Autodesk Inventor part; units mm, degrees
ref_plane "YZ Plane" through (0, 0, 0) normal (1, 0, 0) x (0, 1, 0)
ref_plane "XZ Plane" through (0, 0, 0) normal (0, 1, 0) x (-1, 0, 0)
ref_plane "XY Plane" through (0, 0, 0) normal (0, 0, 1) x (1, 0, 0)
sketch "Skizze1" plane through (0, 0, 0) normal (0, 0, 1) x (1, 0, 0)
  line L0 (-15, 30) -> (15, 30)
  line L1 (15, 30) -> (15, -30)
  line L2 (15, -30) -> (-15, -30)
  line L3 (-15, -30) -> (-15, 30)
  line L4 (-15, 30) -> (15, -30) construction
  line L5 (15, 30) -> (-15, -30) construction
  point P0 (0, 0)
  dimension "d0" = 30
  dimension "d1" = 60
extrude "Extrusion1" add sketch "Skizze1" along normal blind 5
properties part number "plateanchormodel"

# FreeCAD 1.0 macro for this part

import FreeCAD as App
import Part
import Sketcher

V = App.Vector
Q = App.Units.Quantity

doc = App.newDocument("Part")
body = doc.addObject("PartDesign::Body", "Body")

# Sketch on XY plane
sketch1 = doc.addObject("Sketcher::SketchObject", "Sketch")
body.addObject(sketch1)
sketch1.AttachmentSupport = (doc.XY_Plane, [""])
sketch1.MapMode = "FlatFace"
sketch1.addGeometry(Part.LineSegment(V(15, 30, 0), V(-15, 30, 0)), False)
sketch1.addGeometry(Part.LineSegment(V(-15, 30, 0), V(-15, -30, 0)), False)
sketch1.addGeometry(Part.LineSegment(V(-15, -30, 0), V(15, -30, 0)), False)
sketch1.addGeometry(Part.LineSegment(V(15, -30, 0), V(15, 30, 0)), False)
sketch1.addConstraint(Sketcher.Constraint("Coincident", 0, 2, 1, 1))
sketch1.addConstraint(Sketcher.Constraint("Coincident", 1, 2, 2, 1))
sketch1.addConstraint(Sketcher.Constraint("Coincident", 2, 2, 3, 1))
sketch1.addConstraint(Sketcher.Constraint("Coincident", 3, 2, 0, 1))
sketch1.addConstraint(Sketcher.Constraint("Horizontal", 0))
sketch1.addConstraint(Sketcher.Constraint("Vertical", 1))
sketch1.addConstraint(Sketcher.Constraint("Horizontal", 2))
sketch1.addConstraint(Sketcher.Constraint("Vertical", 3))
sketch1.addConstraint(Sketcher.Constraint("Symmetric", 0, 2, 2, 2, -1, 1))
sketch1.addConstraint(Sketcher.Constraint("DistanceX", 0, 2, 0, 1, Q("30 mm")))
sketch1.addConstraint(Sketcher.Constraint("DistanceY", 1, 2, 1, 1, Q("60 mm")))
pad1 = doc.addObject("PartDesign::Pad", "Pad")
body.addObject(pad1)
pad1.Profile = sketch1
pad1.Length = 5

doc.recompute()
